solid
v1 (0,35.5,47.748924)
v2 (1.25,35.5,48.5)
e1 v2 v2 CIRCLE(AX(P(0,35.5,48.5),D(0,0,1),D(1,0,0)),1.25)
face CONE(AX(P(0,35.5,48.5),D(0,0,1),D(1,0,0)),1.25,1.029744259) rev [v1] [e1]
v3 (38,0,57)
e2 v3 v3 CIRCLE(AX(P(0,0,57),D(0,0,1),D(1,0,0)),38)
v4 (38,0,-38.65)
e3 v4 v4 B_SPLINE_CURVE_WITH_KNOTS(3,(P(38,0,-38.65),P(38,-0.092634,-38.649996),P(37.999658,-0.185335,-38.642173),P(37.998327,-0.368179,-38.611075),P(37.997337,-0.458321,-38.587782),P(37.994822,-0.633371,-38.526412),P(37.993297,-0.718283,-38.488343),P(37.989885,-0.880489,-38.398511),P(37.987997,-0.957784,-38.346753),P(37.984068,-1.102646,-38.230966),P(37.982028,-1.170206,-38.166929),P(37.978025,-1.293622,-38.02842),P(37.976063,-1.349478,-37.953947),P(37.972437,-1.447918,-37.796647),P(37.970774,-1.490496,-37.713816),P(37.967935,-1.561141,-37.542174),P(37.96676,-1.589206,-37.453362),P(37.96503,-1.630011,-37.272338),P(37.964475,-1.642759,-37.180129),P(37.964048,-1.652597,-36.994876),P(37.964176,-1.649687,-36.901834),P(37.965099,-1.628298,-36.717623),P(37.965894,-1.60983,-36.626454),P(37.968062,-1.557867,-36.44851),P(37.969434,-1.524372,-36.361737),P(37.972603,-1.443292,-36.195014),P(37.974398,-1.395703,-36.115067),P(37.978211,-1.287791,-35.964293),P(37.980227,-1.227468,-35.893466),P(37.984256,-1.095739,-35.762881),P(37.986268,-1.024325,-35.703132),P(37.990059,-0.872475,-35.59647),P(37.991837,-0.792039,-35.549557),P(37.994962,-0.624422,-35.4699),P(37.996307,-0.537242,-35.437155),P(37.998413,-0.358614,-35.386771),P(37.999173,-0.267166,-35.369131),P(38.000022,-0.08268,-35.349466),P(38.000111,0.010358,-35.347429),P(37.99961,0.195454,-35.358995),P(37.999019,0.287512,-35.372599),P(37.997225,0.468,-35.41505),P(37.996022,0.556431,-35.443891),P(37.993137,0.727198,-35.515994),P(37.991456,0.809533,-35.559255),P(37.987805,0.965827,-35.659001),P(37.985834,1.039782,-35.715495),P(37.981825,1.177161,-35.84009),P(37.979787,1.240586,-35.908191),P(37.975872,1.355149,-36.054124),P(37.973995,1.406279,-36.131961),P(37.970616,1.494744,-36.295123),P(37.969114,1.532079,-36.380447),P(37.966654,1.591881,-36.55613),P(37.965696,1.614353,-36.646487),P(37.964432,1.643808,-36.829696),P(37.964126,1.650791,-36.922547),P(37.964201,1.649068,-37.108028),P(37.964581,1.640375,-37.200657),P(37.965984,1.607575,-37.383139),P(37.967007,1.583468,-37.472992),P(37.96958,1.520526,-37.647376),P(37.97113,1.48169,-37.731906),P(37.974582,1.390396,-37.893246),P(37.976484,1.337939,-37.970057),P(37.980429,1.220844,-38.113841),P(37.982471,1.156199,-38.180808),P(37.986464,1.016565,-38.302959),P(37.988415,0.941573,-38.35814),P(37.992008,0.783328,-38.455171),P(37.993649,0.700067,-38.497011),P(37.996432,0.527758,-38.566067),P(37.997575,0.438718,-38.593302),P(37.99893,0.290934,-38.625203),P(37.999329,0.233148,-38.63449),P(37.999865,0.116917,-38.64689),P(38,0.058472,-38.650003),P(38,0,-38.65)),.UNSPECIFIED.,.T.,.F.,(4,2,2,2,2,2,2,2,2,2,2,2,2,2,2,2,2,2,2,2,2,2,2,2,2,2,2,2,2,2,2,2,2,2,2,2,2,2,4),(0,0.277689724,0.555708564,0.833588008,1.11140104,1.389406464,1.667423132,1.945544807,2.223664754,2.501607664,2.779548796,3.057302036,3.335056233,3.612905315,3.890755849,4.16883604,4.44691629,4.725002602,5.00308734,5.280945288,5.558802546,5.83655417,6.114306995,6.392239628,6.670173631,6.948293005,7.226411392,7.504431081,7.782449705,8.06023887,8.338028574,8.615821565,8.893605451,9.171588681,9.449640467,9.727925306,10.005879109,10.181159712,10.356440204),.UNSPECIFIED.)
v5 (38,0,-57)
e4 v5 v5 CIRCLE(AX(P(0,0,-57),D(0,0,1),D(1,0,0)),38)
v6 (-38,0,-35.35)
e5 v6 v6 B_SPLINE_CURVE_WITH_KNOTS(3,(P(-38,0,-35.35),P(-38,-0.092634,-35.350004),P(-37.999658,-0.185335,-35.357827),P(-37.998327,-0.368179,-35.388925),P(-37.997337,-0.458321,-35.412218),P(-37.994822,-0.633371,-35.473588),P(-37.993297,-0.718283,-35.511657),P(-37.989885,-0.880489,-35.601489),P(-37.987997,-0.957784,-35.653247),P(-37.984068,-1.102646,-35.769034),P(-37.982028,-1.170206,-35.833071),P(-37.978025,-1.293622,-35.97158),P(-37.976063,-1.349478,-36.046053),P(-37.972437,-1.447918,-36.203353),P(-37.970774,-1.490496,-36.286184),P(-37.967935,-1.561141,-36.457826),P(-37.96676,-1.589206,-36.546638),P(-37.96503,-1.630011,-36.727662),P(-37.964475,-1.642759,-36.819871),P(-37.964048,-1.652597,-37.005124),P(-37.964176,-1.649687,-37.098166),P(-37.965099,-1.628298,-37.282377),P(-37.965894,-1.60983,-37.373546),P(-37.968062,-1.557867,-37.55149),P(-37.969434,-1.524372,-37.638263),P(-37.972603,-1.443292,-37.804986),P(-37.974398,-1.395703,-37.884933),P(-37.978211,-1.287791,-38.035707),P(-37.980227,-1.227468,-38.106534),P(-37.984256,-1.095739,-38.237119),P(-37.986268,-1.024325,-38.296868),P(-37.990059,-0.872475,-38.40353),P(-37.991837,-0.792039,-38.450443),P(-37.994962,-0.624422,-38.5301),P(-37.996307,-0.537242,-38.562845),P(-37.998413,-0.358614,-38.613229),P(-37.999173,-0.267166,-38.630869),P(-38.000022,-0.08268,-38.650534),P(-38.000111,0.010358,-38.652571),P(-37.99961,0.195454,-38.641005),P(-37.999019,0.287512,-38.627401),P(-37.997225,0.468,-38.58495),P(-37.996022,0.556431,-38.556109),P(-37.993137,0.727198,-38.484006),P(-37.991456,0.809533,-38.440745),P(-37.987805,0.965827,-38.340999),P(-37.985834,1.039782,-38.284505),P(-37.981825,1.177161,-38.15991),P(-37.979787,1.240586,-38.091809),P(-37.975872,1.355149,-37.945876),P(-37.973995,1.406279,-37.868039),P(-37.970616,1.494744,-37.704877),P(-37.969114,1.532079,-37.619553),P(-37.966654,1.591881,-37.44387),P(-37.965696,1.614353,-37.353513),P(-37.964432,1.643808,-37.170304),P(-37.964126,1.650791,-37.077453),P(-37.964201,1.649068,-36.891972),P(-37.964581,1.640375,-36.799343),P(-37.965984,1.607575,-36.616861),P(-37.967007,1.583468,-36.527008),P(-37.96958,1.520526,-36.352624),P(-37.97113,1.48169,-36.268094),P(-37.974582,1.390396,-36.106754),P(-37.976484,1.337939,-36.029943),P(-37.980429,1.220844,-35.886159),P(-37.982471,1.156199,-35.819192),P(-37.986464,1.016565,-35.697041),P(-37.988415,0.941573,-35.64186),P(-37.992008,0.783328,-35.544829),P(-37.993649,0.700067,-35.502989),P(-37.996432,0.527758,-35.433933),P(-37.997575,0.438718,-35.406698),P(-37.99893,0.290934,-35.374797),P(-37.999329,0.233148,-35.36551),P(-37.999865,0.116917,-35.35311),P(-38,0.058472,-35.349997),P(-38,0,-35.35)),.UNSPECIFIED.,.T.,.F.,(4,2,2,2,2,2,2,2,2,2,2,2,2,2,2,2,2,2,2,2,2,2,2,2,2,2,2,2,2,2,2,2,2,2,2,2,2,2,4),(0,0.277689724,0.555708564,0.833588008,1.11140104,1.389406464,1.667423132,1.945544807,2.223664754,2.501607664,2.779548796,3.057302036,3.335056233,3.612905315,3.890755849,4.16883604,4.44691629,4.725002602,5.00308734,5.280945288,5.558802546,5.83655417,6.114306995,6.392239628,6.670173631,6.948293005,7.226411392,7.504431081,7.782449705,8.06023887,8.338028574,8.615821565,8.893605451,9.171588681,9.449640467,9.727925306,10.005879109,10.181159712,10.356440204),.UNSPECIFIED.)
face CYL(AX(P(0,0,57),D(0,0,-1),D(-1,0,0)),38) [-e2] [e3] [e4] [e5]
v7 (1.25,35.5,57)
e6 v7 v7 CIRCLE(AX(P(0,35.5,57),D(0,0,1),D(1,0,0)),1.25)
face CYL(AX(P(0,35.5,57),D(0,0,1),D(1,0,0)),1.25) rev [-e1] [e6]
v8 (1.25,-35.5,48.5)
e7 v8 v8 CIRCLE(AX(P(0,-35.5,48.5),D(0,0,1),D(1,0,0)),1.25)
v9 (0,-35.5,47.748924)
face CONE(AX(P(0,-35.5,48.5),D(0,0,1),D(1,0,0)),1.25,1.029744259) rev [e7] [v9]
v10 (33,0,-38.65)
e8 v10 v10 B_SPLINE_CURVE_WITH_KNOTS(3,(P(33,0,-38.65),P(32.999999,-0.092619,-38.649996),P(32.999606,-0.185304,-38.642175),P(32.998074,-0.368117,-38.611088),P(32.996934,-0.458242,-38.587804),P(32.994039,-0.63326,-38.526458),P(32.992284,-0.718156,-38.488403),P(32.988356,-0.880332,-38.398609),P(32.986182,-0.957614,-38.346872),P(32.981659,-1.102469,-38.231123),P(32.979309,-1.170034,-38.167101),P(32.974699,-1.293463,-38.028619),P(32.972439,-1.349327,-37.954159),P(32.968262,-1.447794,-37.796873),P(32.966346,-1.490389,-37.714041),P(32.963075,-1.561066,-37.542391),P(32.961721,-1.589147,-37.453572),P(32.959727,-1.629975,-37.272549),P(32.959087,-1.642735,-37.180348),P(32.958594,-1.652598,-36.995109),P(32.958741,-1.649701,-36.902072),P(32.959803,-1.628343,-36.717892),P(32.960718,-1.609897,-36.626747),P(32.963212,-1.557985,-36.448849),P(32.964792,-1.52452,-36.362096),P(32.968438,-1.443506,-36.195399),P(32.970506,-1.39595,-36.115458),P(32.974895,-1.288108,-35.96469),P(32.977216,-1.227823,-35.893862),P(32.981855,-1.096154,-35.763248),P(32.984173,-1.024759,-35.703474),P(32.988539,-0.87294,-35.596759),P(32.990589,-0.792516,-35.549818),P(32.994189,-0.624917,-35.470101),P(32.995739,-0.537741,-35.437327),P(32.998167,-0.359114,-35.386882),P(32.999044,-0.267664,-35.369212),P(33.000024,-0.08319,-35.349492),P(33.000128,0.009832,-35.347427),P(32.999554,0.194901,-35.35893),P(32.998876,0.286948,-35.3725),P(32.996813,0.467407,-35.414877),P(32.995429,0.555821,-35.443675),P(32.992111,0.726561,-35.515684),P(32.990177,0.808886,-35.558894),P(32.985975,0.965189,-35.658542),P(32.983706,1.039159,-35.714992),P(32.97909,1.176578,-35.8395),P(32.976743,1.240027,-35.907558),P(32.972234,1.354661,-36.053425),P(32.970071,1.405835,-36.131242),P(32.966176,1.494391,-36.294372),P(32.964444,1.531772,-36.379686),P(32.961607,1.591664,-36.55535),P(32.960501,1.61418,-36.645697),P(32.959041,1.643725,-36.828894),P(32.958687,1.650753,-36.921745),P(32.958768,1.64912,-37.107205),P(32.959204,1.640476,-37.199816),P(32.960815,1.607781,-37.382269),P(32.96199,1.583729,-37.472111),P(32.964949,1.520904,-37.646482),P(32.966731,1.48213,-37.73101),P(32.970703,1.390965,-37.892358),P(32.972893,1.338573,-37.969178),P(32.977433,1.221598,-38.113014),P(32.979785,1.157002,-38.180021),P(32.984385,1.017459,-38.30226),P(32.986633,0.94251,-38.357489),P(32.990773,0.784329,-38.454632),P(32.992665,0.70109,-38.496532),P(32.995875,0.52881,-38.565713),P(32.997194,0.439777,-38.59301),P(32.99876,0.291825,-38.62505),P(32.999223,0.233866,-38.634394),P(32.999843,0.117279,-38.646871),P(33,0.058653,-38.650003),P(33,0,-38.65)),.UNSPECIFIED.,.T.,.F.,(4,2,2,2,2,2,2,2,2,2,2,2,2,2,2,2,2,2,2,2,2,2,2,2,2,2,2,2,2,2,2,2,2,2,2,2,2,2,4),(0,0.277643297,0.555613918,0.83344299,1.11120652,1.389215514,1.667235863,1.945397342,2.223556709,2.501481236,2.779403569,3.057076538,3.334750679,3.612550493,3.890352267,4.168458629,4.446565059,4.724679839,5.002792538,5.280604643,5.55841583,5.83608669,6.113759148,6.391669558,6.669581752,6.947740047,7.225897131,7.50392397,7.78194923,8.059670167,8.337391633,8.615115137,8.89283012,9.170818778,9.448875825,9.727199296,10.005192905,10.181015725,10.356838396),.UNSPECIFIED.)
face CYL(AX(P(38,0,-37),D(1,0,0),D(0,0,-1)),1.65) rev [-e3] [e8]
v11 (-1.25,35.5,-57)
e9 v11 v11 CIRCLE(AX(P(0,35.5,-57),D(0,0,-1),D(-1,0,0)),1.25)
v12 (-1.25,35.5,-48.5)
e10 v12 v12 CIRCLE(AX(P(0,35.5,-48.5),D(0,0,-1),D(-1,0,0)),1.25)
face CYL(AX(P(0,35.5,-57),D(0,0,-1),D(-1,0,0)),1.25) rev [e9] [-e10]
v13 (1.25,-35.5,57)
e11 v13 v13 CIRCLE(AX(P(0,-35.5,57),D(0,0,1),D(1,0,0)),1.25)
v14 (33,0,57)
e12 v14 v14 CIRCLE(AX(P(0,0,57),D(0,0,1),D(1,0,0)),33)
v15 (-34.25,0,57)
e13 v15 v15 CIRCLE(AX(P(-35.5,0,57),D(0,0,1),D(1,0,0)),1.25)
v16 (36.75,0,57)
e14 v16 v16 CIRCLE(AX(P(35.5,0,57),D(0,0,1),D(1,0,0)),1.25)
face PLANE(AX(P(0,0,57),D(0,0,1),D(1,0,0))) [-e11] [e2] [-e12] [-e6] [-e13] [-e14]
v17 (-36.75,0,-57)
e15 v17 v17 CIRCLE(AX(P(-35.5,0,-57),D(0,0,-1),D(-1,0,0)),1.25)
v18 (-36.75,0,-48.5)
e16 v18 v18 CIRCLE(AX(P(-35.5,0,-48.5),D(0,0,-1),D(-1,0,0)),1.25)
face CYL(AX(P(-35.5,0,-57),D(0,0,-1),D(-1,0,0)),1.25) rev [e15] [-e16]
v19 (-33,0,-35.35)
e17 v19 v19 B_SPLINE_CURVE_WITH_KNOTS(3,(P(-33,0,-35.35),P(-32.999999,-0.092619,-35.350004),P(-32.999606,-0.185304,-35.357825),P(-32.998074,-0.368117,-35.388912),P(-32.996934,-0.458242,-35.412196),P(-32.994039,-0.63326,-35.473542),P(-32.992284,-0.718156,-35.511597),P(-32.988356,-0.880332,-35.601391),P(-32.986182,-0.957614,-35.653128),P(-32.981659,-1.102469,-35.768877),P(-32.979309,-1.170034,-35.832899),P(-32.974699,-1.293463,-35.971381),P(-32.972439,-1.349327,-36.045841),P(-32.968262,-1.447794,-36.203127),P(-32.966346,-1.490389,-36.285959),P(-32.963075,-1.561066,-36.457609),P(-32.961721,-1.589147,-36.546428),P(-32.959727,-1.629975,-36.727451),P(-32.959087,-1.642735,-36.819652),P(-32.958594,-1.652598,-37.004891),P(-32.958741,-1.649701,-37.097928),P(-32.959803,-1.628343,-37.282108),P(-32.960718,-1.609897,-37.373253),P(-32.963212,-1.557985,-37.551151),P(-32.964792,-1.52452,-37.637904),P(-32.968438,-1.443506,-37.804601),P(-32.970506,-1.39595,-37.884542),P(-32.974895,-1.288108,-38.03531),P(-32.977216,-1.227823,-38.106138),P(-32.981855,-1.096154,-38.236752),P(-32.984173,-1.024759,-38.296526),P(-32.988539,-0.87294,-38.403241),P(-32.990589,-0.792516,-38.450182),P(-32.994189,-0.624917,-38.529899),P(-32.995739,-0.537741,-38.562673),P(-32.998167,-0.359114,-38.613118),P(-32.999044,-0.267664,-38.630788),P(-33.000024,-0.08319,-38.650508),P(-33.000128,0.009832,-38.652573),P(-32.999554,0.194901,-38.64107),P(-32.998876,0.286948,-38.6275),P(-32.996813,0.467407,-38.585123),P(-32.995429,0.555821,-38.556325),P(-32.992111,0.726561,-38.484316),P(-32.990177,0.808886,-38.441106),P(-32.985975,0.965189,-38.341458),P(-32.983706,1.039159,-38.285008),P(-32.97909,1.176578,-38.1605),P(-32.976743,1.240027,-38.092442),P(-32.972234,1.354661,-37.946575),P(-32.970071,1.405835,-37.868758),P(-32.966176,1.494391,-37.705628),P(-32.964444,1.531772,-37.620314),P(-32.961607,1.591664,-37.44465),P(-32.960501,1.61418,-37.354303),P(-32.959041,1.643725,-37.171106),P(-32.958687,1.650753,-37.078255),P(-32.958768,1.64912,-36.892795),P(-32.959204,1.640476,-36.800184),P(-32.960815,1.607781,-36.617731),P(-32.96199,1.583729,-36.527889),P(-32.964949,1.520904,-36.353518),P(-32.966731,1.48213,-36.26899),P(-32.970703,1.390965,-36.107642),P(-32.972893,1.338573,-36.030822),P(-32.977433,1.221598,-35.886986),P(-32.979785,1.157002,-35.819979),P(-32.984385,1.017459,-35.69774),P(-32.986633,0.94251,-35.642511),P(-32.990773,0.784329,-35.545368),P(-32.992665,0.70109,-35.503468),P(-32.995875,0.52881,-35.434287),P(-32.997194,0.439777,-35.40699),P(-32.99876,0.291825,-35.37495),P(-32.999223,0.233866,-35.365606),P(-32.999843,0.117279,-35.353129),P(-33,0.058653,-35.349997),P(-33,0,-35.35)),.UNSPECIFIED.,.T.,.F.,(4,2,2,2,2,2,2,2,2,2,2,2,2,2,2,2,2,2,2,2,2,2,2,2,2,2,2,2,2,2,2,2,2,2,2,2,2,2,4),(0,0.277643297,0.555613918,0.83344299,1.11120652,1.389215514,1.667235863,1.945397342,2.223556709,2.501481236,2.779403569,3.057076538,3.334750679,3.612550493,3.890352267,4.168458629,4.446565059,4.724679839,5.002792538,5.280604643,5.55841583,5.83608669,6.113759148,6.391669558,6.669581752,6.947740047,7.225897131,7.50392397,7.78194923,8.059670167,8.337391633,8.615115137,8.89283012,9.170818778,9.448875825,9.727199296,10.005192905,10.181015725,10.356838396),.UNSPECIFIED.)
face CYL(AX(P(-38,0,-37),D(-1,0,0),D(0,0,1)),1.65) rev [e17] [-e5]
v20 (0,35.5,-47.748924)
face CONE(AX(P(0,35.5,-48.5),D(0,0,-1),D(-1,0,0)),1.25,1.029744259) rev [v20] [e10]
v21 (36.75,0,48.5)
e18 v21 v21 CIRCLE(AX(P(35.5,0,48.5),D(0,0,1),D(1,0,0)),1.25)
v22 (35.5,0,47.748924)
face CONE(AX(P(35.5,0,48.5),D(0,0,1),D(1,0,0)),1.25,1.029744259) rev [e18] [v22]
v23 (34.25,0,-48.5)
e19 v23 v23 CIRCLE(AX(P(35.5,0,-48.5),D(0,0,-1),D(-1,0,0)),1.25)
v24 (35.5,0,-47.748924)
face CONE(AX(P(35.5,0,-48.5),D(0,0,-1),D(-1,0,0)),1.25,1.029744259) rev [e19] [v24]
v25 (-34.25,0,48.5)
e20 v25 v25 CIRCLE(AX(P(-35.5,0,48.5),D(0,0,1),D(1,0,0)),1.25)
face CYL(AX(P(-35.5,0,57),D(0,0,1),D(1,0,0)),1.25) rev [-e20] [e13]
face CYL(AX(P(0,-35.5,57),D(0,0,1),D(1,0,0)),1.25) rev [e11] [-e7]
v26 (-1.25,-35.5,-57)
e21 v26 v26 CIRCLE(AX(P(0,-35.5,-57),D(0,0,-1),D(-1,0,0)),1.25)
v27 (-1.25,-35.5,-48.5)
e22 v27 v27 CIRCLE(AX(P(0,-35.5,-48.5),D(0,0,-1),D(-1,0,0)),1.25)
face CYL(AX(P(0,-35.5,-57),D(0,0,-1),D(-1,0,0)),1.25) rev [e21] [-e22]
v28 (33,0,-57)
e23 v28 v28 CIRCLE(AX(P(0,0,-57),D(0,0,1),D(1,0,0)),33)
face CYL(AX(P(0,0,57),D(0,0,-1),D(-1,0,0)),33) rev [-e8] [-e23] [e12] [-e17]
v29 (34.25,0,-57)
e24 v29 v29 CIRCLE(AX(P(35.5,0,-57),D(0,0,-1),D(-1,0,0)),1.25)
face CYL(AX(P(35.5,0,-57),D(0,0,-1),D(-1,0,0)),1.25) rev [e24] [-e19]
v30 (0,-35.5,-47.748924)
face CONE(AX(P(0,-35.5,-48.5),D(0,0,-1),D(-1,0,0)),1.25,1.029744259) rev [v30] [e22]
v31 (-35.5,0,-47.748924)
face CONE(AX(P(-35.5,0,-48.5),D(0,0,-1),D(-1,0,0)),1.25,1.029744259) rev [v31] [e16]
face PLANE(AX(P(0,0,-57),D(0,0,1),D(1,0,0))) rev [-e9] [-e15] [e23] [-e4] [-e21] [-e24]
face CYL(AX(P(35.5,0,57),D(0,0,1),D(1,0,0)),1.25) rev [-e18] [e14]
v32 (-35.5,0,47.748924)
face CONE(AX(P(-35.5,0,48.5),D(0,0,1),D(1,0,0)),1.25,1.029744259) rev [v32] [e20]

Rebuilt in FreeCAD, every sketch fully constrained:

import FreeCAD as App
import Part
import Sketcher

V = App.Vector
Q = App.Units.Quantity

doc = App.newDocument("Part")
body = doc.addObject("PartDesign::Body", "Body")

# Sketch on XY plane
sketch1 = doc.addObject("Sketcher::SketchObject", "Sketch")
body.addObject(sketch1)
sketch1.AttachmentSupport = (doc.XY_Plane, [""])
sketch1.MapMode = "FlatFace"
sketch1.addGeometry(Part.Circle(V(0, 0, 0), V(0, 0, 1), 38), False)
sketch1.addGeometry(Part.Circle(V(0, 0, 0), V(0, 0, 1), 33), False)
sketch1.addConstraint(Sketcher.Constraint("Coincident", 0, 3, -1, 1))
sketch1.addConstraint(Sketcher.Constraint("Coincident", 1, 3, -1, 1))
sketch1.addConstraint(Sketcher.Constraint("Diameter", 0, Q("76 mm")))
sketch1.addConstraint(Sketcher.Constraint("Diameter", 1, Q("66 mm")))
pad1 = doc.addObject("PartDesign::Pad", "Pad")
body.addObject(pad1)
pad1.Profile = sketch1
pad1.Length = 114
pad1.Midplane = True

# Sketch on XY plane
sketch2 = doc.addObject("Sketcher::SketchObject", "Sketch001")
body.addObject(sketch2)
sketch2.AttachmentSupport = (doc.XY_Plane, [""])
sketch2.MapMode = "FlatFace"
sketch2.AttachmentOffset = App.Placement(V(0, 0, 57), App.Rotation())
sketch2.addGeometry(Part.Circle(V(0, 35.5, 0), V(0, 0, 1), 1.2), False)
sketch2.addGeometry(Part.Circle(V(35.5, 0, 0), V(0, 0, 1), 1.2), False)
sketch2.addGeometry(Part.Circle(V(0, -35.5, 0), V(0, 0, 1), 1.2), False)
sketch2.addGeometry(Part.Circle(V(-35.5, 0, 0), V(0, 0, 1), 1.2), False)
sketch2.addConstraint(Sketcher.Constraint("Equal", 0, 1))
sketch2.addConstraint(Sketcher.Constraint("Equal", 1, 2))
sketch2.addConstraint(Sketcher.Constraint("Equal", 2, 3))
sketch2.addConstraint(Sketcher.Constraint("Symmetric", 0, 3, 2, 3, -1, 1))
sketch2.addConstraint(Sketcher.Constraint("Symmetric", 1, 3, 3, 3, -1, 1))
sketch2.addConstraint(Sketcher.Constraint("PointOnObject", 0, 3, -2))
sketch2.addConstraint(Sketcher.Constraint("PointOnObject", 1, 3, -1))
sketch2.addConstraint(Sketcher.Constraint("Diameter", 0, Q("2.5 mm")))
sketch2.addConstraint(Sketcher.Constraint("DistanceY", 2, 3, 0, 3, Q("71 mm")))
sketch2.addConstraint(Sketcher.Constraint("DistanceX", 3, 3, 1, 3, Q("71 mm")))
doc.recompute()
hole = doc.addObject("PartDesign::Hole", "Hole")
body.addObject(hole)
hole.Profile = sketch2
hole.ThreadType = "None"
hole.Diameter = 2.5
hole.DepthType = "Dimension"
hole.Depth = 8.5
hole.DrillPoint = "Angled"
hole.DrillPointAngle = 118

# Sketch on XY plane
sketch3 = doc.addObject("Sketcher::SketchObject", "Sketch002")
body.addObject(sketch3)
sketch3.AttachmentSupport = (doc.XY_Plane, [""])
sketch3.MapMode = "FlatFace"
sketch3.AttachmentOffset = App.Placement(V(0, 0, -57), App.Rotation())
sketch3.addGeometry(Part.Circle(V(-35.5, 0, 0), V(0, 0, 1), 1.2), False)
sketch3.addGeometry(Part.Circle(V(0, -35.5, 0), V(0, 0, 1), 1.2), False)
sketch3.addGeometry(Part.Circle(V(35.5, 0, 0), V(0, 0, 1), 1.2), False)
sketch3.addGeometry(Part.Circle(V(0, 35.5, 0), V(0, 0, 1), 1.2), False)
sketch3.addConstraint(Sketcher.Constraint("Equal", 0, 1))
sketch3.addConstraint(Sketcher.Constraint("Equal", 1, 2))
sketch3.addConstraint(Sketcher.Constraint("Equal", 2, 3))
sketch3.addConstraint(Sketcher.Constraint("Symmetric", 0, 3, 2, 3, -1, 1))
sketch3.addConstraint(Sketcher.Constraint("Symmetric", 1, 3, 3, 3, -1, 1))
sketch3.addConstraint(Sketcher.Constraint("PointOnObject", 0, 3, -1))
sketch3.addConstraint(Sketcher.Constraint("PointOnObject", 1, 3, -2))
sketch3.addConstraint(Sketcher.Constraint("Diameter", 0, Q("2.5 mm")))
sketch3.addConstraint(Sketcher.Constraint("DistanceX", 0, 3, 2, 3, Q("71 mm")))
sketch3.addConstraint(Sketcher.Constraint("DistanceY", 1, 3, 3, 3, Q("71 mm")))
doc.recompute()
hole2 = doc.addObject("PartDesign::Hole", "Hole001")
body.addObject(hole2)
hole2.Profile = sketch3
hole2.ThreadType = "None"
hole2.Diameter = 2.5
hole2.DepthType = "Dimension"
hole2.Depth = 8.5
hole2.DrillPoint = "Angled"
hole2.DrillPointAngle = 118
hole2.Reversed = True

# Sketch on YZ plane
sketch4 = doc.addObject("Sketcher::SketchObject", "Sketch003")
body.addObject(sketch4)
sketch4.AttachmentSupport = (doc.YZ_Plane, [""])
sketch4.MapMode = "FlatFace"
sketch4.AttachmentOffset = App.Placement(V(0, 0, 38), App.Rotation())
sketch4.addGeometry(Part.Circle(V(0, -37, 0), V(0, 0, 1), 1.6), False)
sketch4.addConstraint(Sketcher.Constraint("PointOnObject", 0, 3, -2))
sketch4.addConstraint(Sketcher.Constraint("Diameter", 0, Q("3.3 mm")))
sketch4.addConstraint(Sketcher.Constraint("DistanceY", 0, 3, -1, 1, Q("37 mm")))
doc.recompute()
hole3 = doc.addObject("PartDesign::Hole", "Hole002")
body.addObject(hole3)
hole3.Profile = sketch4
hole3.ThreadType = "None"
hole3.Diameter = 3.3
hole3.DepthType = "ThroughAll"

# Sketch on YZ plane
sketch5 = doc.addObject("Sketcher::SketchObject", "Sketch004")
body.addObject(sketch5)
sketch5.AttachmentSupport = (doc.YZ_Plane, [""])
sketch5.MapMode = "FlatFace"
sketch5.AttachmentOffset = App.Placement(V(0, 0, -38), App.Rotation())
sketch5.addGeometry(Part.Circle(V(0, -37, 0), V(0, 0, 1), 1.6), False)
sketch5.addConstraint(Sketcher.Constraint("PointOnObject", 0, 3, -2))
sketch5.addConstraint(Sketcher.Constraint("Diameter", 0, Q("3.3 mm")))
sketch5.addConstraint(Sketcher.Constraint("DistanceY", 0, 3, -1, 1, Q("37 mm")))
doc.recompute()
hole4 = doc.addObject("PartDesign::Hole", "Hole003")
body.addObject(hole4)
hole4.Profile = sketch5
hole4.ThreadType = "None"
hole4.Diameter = 3.3
hole4.DepthType = "ThroughAll"
hole4.Reversed = True

doc.recompute()
